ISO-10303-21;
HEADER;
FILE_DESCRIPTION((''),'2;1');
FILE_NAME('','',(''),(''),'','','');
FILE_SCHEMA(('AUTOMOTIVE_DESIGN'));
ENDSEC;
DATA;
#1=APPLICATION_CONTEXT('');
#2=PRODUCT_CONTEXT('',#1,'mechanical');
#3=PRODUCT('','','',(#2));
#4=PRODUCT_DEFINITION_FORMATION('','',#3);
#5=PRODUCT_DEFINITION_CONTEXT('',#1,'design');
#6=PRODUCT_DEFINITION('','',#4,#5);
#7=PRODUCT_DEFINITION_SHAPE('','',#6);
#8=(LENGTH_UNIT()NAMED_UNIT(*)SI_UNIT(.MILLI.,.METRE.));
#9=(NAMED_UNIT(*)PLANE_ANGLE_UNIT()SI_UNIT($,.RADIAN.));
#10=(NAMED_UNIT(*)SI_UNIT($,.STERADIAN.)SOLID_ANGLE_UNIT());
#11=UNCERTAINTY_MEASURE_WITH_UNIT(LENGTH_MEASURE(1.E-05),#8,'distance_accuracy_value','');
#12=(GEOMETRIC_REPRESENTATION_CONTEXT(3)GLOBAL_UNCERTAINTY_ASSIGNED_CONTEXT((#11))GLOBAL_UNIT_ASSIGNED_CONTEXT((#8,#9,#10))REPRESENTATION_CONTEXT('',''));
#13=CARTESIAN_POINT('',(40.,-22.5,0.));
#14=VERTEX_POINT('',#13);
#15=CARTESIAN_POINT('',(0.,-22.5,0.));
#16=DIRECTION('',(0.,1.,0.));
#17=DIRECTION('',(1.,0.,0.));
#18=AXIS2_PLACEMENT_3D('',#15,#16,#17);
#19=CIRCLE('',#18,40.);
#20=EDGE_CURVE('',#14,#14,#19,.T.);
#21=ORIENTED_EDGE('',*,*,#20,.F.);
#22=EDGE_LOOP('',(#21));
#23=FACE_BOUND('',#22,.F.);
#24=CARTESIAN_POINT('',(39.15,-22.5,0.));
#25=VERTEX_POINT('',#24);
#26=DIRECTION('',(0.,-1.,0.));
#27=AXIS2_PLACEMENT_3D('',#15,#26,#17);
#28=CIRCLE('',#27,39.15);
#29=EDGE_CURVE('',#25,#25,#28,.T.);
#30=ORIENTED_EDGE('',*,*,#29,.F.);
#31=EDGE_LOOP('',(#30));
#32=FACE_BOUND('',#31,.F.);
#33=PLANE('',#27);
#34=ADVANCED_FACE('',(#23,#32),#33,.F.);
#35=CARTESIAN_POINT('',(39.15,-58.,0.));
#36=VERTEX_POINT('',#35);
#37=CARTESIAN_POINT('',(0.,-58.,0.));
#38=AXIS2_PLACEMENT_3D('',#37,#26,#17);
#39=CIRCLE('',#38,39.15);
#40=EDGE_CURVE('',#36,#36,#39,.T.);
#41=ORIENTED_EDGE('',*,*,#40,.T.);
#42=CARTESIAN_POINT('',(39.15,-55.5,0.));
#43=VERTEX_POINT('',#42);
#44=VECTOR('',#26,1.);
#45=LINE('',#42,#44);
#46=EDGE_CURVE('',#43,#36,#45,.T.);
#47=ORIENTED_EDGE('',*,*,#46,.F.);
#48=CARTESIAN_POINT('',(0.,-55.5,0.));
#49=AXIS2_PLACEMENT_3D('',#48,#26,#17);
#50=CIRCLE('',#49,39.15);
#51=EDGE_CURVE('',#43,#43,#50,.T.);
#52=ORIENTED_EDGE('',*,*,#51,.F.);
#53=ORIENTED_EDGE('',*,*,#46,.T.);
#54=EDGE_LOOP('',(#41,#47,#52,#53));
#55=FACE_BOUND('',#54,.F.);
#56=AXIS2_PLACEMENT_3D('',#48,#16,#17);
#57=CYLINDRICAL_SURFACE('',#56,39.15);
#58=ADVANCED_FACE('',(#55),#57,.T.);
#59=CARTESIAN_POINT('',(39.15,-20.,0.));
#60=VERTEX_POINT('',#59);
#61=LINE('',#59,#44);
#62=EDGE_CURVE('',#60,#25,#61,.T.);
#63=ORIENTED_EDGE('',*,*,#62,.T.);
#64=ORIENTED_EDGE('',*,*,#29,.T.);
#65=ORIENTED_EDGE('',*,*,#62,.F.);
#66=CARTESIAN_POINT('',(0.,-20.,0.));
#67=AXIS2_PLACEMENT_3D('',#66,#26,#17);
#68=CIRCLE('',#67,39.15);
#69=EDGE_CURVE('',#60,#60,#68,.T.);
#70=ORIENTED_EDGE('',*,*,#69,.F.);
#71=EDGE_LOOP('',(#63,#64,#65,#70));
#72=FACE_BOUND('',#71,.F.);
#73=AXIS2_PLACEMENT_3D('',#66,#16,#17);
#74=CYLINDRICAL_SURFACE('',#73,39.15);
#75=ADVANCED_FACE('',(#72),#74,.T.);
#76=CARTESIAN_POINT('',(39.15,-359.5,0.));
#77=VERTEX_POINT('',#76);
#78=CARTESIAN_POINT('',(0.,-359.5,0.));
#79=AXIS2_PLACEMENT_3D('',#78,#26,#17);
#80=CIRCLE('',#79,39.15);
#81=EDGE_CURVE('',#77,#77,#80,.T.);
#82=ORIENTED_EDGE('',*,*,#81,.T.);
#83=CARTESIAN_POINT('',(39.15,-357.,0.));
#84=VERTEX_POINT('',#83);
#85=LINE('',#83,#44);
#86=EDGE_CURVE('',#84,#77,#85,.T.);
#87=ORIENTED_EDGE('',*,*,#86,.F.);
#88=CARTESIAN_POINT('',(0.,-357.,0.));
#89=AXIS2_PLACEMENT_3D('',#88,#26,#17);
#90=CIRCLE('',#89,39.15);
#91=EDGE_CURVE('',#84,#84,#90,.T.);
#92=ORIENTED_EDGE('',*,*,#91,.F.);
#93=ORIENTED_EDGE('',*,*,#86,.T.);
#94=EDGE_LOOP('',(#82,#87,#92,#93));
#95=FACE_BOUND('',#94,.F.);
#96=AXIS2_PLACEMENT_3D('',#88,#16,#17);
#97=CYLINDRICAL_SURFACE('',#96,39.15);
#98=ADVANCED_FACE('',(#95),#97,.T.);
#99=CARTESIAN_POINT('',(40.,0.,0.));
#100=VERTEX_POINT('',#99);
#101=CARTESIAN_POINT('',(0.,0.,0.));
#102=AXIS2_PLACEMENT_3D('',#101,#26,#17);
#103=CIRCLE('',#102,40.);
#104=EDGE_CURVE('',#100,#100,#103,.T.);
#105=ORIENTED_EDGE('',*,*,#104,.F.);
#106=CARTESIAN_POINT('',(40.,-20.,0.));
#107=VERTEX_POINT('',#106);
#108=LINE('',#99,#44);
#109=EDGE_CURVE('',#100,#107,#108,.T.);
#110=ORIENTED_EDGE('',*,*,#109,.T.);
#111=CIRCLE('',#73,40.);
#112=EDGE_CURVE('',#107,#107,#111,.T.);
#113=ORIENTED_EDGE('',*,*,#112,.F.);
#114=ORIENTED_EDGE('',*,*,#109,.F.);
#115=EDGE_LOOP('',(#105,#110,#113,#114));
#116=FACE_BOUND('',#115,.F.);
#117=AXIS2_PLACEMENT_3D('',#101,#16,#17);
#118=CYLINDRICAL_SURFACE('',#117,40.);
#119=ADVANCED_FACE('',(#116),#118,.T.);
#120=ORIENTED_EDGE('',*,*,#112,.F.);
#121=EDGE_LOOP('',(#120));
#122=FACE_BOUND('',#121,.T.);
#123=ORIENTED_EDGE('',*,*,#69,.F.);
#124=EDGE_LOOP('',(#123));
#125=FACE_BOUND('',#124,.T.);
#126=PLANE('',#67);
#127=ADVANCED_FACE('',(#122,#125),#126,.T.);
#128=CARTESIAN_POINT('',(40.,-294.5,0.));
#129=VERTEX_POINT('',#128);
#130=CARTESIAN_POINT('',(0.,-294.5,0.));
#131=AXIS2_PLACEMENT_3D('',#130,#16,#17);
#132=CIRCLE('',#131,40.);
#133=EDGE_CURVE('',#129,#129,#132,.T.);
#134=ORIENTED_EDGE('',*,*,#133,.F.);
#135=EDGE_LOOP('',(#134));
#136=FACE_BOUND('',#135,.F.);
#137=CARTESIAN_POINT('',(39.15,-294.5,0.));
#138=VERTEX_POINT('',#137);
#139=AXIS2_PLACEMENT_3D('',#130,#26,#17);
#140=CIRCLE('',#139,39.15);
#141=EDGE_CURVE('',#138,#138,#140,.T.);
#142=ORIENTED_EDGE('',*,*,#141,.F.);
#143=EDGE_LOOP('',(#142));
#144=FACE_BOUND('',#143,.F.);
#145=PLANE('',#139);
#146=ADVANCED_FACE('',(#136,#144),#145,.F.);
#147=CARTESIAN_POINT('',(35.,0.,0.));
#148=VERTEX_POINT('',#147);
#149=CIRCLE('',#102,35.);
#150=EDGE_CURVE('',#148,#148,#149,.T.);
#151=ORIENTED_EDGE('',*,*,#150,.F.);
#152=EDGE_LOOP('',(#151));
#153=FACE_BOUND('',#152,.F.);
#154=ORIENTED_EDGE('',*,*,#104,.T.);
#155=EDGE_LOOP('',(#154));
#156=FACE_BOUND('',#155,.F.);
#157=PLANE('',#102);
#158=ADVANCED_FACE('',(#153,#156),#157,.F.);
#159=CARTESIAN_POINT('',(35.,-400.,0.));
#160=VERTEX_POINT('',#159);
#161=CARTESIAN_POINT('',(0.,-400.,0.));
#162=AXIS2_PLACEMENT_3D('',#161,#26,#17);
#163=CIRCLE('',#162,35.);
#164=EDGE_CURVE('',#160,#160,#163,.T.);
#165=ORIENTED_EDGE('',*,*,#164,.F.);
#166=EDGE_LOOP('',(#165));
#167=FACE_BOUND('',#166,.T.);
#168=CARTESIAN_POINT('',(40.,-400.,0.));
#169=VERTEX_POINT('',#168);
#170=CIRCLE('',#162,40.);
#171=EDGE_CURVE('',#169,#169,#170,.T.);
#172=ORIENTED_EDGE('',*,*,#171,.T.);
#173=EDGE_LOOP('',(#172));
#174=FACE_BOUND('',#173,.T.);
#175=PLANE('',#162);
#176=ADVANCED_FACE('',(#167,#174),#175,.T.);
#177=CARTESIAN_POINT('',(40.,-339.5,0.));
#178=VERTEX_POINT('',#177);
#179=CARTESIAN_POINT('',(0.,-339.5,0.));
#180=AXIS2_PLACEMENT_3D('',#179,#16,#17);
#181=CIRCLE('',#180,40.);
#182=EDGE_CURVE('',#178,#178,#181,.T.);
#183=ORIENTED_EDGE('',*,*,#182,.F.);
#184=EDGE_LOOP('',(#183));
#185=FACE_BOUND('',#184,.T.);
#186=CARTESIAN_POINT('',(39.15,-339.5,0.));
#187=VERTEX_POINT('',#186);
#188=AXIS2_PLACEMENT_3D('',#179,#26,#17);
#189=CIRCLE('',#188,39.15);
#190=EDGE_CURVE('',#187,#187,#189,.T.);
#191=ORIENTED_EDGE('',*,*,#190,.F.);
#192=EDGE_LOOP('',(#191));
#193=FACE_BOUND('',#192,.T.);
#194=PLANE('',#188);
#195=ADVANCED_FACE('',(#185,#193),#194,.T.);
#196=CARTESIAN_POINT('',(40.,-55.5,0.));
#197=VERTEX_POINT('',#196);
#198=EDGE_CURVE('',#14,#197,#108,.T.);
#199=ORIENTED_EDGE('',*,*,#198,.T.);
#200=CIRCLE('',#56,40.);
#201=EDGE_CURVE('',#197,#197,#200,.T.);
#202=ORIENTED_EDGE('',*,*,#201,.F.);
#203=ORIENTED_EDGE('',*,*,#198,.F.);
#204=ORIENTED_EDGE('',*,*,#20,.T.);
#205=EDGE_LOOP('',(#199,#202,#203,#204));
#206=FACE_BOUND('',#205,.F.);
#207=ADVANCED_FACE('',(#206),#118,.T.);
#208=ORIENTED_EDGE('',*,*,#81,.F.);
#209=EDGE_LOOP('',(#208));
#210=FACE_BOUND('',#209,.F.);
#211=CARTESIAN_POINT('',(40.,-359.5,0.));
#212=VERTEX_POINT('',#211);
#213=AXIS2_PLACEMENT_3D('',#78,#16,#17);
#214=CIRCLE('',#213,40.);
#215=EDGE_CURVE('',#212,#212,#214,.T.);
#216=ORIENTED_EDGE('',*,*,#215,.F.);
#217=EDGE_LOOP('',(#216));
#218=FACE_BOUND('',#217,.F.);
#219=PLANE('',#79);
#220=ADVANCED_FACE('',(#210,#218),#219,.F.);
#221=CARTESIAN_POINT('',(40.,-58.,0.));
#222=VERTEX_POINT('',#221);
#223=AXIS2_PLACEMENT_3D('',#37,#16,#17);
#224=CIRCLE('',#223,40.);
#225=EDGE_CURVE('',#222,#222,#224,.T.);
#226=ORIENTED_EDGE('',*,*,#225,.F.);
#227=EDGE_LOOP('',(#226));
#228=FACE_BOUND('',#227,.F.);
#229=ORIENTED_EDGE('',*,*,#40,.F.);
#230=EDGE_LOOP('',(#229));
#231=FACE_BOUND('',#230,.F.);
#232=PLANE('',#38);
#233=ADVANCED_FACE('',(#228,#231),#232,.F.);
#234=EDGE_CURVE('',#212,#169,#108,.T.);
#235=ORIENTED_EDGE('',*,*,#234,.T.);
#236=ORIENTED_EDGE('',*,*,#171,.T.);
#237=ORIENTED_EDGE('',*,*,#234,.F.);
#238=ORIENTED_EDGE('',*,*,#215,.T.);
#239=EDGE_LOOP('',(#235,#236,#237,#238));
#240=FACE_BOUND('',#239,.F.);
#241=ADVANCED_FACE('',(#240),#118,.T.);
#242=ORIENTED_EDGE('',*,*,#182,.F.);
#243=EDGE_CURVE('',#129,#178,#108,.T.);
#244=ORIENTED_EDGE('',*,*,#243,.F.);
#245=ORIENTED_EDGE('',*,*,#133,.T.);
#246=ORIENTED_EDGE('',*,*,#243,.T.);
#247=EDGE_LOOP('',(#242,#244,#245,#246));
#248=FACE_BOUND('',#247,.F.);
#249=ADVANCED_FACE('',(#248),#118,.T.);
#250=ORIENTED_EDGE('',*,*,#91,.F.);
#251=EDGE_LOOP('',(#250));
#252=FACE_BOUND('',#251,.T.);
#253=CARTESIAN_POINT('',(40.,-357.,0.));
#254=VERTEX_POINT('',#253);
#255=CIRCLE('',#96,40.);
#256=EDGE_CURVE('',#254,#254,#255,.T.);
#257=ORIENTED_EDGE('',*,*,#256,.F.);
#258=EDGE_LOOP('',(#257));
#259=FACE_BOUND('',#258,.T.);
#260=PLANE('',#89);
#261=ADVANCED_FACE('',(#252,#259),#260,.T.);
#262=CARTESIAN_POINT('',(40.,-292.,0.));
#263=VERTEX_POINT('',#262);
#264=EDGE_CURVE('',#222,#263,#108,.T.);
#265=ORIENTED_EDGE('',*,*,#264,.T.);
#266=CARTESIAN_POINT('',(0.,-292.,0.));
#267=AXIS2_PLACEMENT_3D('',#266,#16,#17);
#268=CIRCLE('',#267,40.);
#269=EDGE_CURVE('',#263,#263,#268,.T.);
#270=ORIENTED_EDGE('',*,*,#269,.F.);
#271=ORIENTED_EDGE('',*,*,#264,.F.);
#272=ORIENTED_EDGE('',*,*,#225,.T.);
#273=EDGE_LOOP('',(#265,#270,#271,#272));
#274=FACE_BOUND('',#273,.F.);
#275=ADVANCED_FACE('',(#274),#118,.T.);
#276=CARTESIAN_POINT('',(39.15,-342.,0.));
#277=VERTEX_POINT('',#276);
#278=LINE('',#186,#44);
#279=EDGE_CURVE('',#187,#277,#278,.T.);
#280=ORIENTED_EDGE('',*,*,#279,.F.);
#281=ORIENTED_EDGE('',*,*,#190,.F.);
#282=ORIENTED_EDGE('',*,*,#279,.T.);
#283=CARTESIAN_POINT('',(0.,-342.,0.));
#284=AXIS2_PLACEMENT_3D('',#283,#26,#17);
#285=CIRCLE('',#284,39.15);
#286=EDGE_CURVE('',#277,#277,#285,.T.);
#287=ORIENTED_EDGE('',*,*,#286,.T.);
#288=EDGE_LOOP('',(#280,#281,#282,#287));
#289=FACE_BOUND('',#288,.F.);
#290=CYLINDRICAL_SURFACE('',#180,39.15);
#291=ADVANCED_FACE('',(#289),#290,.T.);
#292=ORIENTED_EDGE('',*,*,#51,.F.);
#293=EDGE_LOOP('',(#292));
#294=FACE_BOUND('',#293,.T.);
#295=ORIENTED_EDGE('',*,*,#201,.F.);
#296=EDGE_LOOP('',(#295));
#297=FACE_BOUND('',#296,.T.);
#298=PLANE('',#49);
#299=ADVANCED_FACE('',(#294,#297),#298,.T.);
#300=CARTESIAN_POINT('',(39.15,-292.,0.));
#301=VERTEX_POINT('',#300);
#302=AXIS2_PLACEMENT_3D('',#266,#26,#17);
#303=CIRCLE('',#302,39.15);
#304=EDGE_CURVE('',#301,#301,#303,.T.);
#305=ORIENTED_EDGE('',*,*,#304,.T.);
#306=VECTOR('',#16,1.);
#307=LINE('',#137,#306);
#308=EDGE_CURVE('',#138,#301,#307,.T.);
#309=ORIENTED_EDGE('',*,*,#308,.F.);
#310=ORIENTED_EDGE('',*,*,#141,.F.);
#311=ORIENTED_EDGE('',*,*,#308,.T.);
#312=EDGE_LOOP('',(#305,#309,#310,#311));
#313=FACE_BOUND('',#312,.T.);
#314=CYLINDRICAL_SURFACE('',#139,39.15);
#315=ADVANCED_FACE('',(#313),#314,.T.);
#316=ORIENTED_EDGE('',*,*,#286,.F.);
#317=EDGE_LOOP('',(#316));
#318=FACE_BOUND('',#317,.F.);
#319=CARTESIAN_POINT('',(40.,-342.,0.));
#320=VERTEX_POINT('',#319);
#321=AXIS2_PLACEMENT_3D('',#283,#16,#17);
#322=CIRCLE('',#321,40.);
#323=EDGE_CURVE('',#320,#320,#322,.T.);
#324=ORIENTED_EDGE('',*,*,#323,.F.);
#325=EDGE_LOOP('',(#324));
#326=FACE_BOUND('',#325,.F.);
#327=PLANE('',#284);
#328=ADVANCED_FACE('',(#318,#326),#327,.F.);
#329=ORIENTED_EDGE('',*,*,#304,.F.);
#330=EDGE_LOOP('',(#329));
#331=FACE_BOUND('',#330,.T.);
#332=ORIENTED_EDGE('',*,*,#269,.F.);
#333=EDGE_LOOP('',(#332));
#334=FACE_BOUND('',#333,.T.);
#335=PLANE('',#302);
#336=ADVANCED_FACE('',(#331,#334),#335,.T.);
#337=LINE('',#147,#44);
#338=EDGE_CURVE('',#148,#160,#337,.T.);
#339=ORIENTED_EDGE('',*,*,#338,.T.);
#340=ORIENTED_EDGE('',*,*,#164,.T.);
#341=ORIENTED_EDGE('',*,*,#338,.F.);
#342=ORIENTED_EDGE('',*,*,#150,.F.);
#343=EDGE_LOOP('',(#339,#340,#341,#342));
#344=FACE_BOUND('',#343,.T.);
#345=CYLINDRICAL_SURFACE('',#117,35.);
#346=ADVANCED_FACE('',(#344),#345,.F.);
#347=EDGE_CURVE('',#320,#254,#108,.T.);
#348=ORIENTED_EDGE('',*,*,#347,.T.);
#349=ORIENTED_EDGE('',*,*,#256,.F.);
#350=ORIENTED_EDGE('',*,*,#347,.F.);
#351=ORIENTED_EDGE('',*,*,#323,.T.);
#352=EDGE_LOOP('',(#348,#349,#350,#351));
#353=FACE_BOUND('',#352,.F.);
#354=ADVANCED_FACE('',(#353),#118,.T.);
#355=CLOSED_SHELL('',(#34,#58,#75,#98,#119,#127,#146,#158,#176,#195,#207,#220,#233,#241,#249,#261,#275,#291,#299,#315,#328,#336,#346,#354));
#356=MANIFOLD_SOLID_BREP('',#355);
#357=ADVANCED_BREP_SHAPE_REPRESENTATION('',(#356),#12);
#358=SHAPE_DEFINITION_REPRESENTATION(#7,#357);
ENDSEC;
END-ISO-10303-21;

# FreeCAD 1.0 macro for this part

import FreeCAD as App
import Part
import Sketcher

doc = App.newDocument("Part")
body = doc.addObject("PartDesign::Body", "Body")

sketch1 = doc.addObject("Sketcher::SketchObject", "Sketch")
body.addObject(sketch1)
sketch1.AttachmentSupport = (doc.XZ_Plane, [""])
sketch1.MapMode = "FlatFace"
sketch1.addGeometry(Part.Circle(App.Vector(0, 0, 0), App.Vector(0, 0, 1), 40), False)
sketch1.addGeometry(Part.Circle(App.Vector(0, 0, 0), App.Vector(0, 0, 1), 35), False)
sketch1.addConstraint(Sketcher.Constraint("Coincident", 0, 3, -1, 1))
sketch1.addConstraint(Sketcher.Constraint("Coincident", 1, 3, -1, 1))
sketch1.addConstraint(Sketcher.Constraint("Diameter", 0, 80.0))
sketch1.addConstraint(Sketcher.Constraint("Diameter", 1, 70.0))
pad1 = doc.addObject("PartDesign::Pad", "Pad")
body.addObject(pad1)
pad1.Profile = sketch1
pad1.Length = 400

sketch2 = doc.addObject("Sketcher::SketchObject", "Sketch001")
body.addObject(sketch2)
sketch2.AttachmentSupport = (doc.XZ_Plane, [""])
sketch2.MapMode = "FlatFace"
sketch2.AttachmentOffset = App.Placement(App.Vector(0, 0, 20), App.Rotation())
sketch2.addGeometry(Part.Circle(App.Vector(0, 0, 0), App.Vector(0, 0, 1), 44), False)
sketch2.addGeometry(Part.Circle(App.Vector(0, 0, 0), App.Vector(0, 0, 1), 39), False)
sketch2.addConstraint(Sketcher.Constraint("Coincident", 0, 3, -1, 1))
sketch2.addConstraint(Sketcher.Constraint("Coincident", 1, 3, -1, 1))
sketch2.addConstraint(Sketcher.Constraint("Diameter", 0, 88.0))
sketch2.addConstraint(Sketcher.Constraint("Diameter", 1, 78.3))
pocket1 = doc.addObject("PartDesign::Pocket", "Pocket")
body.addObject(pocket1)
pocket1.Profile = sketch2
pocket1.Length = 2.5
pocket1.Reversed = True

sketch3 = doc.addObject("Sketcher::SketchObject", "Sketch002")
body.addObject(sketch3)
sketch3.AttachmentSupport = (doc.XZ_Plane, [""])
sketch3.MapMode = "FlatFace"
sketch3.AttachmentOffset = App.Placement(App.Vector(0, 0, 55.5), App.Rotation())
sketch3.addGeometry(Part.Circle(App.Vector(0, 0, 0), App.Vector(0, 0, 1), 42), False)
sketch3.addGeometry(Part.Circle(App.Vector(0, 0, 0), App.Vector(0, 0, 1), 39), False)
sketch3.addConstraint(Sketcher.Constraint("Coincident", 0, 3, -1, 1))
sketch3.addConstraint(Sketcher.Constraint("Coincident", 1, 3, -1, 1))
sketch3.addConstraint(Sketcher.Constraint("Diameter", 0, 85.0))
sketch3.addConstraint(Sketcher.Constraint("Diameter", 1, 78.3))
pocket2 = doc.addObject("PartDesign::Pocket", "Pocket001")
body.addObject(pocket2)
pocket2.Profile = sketch3
pocket2.Length = 2.5
pocket2.Reversed = True

sketch4 = doc.addObject("Sketcher::SketchObject", "Sketch003")
body.addObject(sketch4)
sketch4.AttachmentSupport = (doc.XZ_Plane, [""])
sketch4.MapMode = "FlatFace"
sketch4.AttachmentOffset = App.Placement(App.Vector(0, 0, 480), App.Rotation())
sketch4.addGeometry(Part.Circle(App.Vector(0, 0, 0), App.Vector(0, 0, 1), 42), False)
sketch4.addGeometry(Part.Circle(App.Vector(0, 0, 0), App.Vector(0, 0, 1), 39), False)
sketch4.addConstraint(Sketcher.Constraint("Coincident", 0, 3, -1, 1))
sketch4.addConstraint(Sketcher.Constraint("Coincident", 1, 3, -1, 1))
sketch4.addConstraint(Sketcher.Constraint("Diameter", 0, 85.0))
sketch4.addConstraint(Sketcher.Constraint("Diameter", 1, 78.3))
pocket3 = doc.addObject("PartDesign::Pocket", "Pocket002")
body.addObject(pocket3)
pocket3.Profile = sketch4
pocket3.Length = 2.5

sketch5 = doc.addObject("Sketcher::SketchObject", "Sketch004")
body.addObject(sketch5)
sketch5.AttachmentSupport = (doc.XZ_Plane, [""])
sketch5.MapMode = "FlatFace"
sketch5.AttachmentOffset = App.Placement(App.Vector(0, 0, 444.5), App.Rotation())
sketch5.addGeometry(Part.Circle(App.Vector(0, 0, 0), App.Vector(0, 0, 1), 42), False)
sketch5.addGeometry(Part.Circle(App.Vector(0, 0, 0), App.Vector(0, 0, 1), 39), False)
sketch5.addConstraint(Sketcher.Constraint("Coincident", 0, 3, -1, 1))
sketch5.addConstraint(Sketcher.Constraint("Coincident", 1, 3, -1, 1))
sketch5.addConstraint(Sketcher.Constraint("Diameter", 0, 85.0))
sketch5.addConstraint(Sketcher.Constraint("Diameter", 1, 78.3))
pocket4 = doc.addObject("PartDesign::Pocket", "Pocket003")
body.addObject(pocket4)
pocket4.Profile = sketch5
pocket4.Length = 2.5

sketch6 = doc.addObject("Sketcher::SketchObject", "Sketch005")
body.addObject(sketch6)
sketch6.AttachmentSupport = (doc.XZ_Plane, [""])
sketch6.MapMode = "FlatFace"
sketch6.AttachmentOffset = App.Placement(App.Vector(0, 0, 590), App.Rotation())
sketch6.addGeometry(Part.Circle(App.Vector(0, 0, 0), App.Vector(0, 0, 1), 44), False)
sketch6.addGeometry(Part.Circle(App.Vector(0, 0, 0), App.Vector(0, 0, 1), 39), False)
sketch6.addConstraint(Sketcher.Constraint("Coincident", 0, 3, -1, 1))
sketch6.addConstraint(Sketcher.Constraint("Coincident", 1, 3, -1, 1))
sketch6.addConstraint(Sketcher.Constraint("Diameter", 0, 88.0))
sketch6.addConstraint(Sketcher.Constraint("Diameter", 1, 78.3))
pocket5 = doc.addObject("PartDesign::Pocket", "Pocket004")
body.addObject(pocket5)
pocket5.Profile = sketch6
pocket5.Length = 2.5

sketch7 = doc.addObject("Sketcher::SketchObject", "Sketch006")
body.addObject(sketch7)
sketch7.AttachmentSupport = (doc.XZ_Plane, [""])
sketch7.MapMode = "FlatFace"
sketch7.AttachmentOffset = App.Placement(App.Vector(0, 0, 600), App.Rotation())
sketch7.addGeometry(Part.Circle(App.Vector(0, 0, 0), App.Vector(0, 0, 1), 44), False)
sketch7.addGeometry(Part.Circle(App.Vector(0, 0, 0), App.Vector(0, 0, 1), 39), False)
sketch7.addConstraint(Sketcher.Constraint("Coincident", 0, 3, -1, 1))
sketch7.addConstraint(Sketcher.Constraint("Coincident", 1, 3, -1, 1))
sketch7.addConstraint(Sketcher.Constraint("Diameter", 0, 88.0))
sketch7.addConstraint(Sketcher.Constraint("Diameter", 1, 78.3))
pocket6 = doc.addObject("PartDesign::Pocket", "Pocket005")
body.addObject(pocket6)
pocket6.Profile = sketch7
pocket6.Length = 2.5

sketch8 = doc.addObject("Sketcher::SketchObject", "Sketch007")
body.addObject(sketch8)
sketch8.AttachmentSupport = (doc.XZ_Plane, [""])
sketch8.MapMode = "FlatFace"
sketch8.AttachmentOffset = App.Placement(App.Vector(0, 0, 294.5), App.Rotation())
sketch8.addGeometry(Part.Circle(App.Vector(0, 0, 0), App.Vector(0, 0, 1), 42), False)
sketch8.addGeometry(Part.Circle(App.Vector(0, 0, 0), App.Vector(0, 0, 1), 39), False)
sketch8.addConstraint(Sketcher.Constraint("Coincident", 0, 3, -1, 1))
sketch8.addConstraint(Sketcher.Constraint("Coincident", 1, 3, -1, 1))
sketch8.addConstraint(Sketcher.Constraint("Diameter", 0, 85.0))
sketch8.addConstraint(Sketcher.Constraint("Diameter", 1, 78.3))
pocket7 = doc.addObject("PartDesign::Pocket", "Pocket006")
body.addObject(pocket7)
pocket7.Profile = sketch8
pocket7.Length = 2.5

sketch9 = doc.addObject("Sketcher::SketchObject", "Sketch008")
body.addObject(sketch9)
sketch9.AttachmentSupport = (doc.XZ_Plane, [""])
sketch9.MapMode = "FlatFace"
sketch9.AttachmentOffset = App.Placement(App.Vector(0, 0, 357), App.Rotation())
sketch9.addGeometry(Part.Circle(App.Vector(0, 0, 0), App.Vector(0, 0, 1), 44), False)
sketch9.addGeometry(Part.Circle(App.Vector(0, 0, 0), App.Vector(0, 0, 1), 39), False)
sketch9.addConstraint(Sketcher.Constraint("Coincident", 0, 3, -1, 1))
sketch9.addConstraint(Sketcher.Constraint("Coincident", 1, 3, -1, 1))
sketch9.addConstraint(Sketcher.Constraint("Diameter", 0, 88.0))
sketch9.addConstraint(Sketcher.Constraint("Diameter", 1, 78.3))
pocket8 = doc.addObject("PartDesign::Pocket", "Pocket007")
body.addObject(pocket8)
pocket8.Profile = sketch9
pocket8.Length = 2.5
pocket8.Reversed = True

sketch10 = doc.addObject("Sketcher::SketchObject", "Sketch009")
body.addObject(sketch10)
sketch10.AttachmentSupport = (doc.XZ_Plane, [""])
sketch10.MapMode = "FlatFace"
sketch10.AttachmentOffset = App.Placement(App.Vector(0, 0, 339.5), App.Rotation())
sketch10.addGeometry(Part.Circle(App.Vector(0, 0, 0), App.Vector(0, 0, 1), 44), False)
sketch10.addGeometry(Part.Circle(App.Vector(0, 0, 0), App.Vector(0, 0, 1), 39), False)
sketch10.addConstraint(Sketcher.Constraint("Coincident", 0, 3, -1, 1))
sketch10.addConstraint(Sketcher.Constraint("Coincident", 1, 3, -1, 1))
sketch10.addConstraint(Sketcher.Constraint("Diameter", 0, 88.0))
sketch10.addConstraint(Sketcher.Constraint("Diameter", 1, 78.3))
pocket9 = doc.addObject("PartDesign::Pocket", "Pocket008")
body.addObject(pocket9)
pocket9.Profile = sketch10
pocket9.Length = 2.5
pocket9.Reversed = True

doc.recompute()
